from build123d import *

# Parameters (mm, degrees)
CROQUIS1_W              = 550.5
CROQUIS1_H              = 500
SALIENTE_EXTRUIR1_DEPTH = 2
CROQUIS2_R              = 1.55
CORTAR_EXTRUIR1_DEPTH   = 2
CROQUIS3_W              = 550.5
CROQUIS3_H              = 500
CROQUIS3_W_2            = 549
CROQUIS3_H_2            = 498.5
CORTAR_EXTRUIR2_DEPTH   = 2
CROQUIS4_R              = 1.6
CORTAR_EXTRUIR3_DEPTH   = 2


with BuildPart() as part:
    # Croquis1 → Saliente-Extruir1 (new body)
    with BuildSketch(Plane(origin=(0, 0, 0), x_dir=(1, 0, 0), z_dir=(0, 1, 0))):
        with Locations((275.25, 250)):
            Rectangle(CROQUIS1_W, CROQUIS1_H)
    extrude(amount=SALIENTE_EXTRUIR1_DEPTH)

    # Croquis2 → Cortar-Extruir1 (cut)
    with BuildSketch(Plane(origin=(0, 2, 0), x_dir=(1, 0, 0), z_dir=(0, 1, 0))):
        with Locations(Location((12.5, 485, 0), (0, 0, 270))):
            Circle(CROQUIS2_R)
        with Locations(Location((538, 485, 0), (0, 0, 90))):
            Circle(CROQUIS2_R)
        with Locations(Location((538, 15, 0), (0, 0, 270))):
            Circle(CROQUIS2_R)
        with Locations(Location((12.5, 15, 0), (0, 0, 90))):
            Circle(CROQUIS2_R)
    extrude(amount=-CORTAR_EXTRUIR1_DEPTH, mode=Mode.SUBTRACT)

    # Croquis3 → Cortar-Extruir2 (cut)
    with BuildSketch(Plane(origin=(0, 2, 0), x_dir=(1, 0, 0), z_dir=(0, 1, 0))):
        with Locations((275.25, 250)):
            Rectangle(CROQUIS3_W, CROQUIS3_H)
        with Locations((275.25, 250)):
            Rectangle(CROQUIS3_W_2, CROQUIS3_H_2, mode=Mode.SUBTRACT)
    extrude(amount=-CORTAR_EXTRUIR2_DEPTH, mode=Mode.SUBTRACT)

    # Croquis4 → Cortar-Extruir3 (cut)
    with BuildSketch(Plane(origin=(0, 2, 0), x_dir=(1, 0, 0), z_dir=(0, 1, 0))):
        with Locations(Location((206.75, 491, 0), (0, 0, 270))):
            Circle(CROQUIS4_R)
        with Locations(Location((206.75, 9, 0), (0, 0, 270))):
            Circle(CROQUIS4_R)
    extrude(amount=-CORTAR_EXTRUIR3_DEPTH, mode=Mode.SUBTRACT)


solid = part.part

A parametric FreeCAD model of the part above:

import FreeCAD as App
import Part
import Sketcher
from FreeCAD import Vector

doc = App.newDocument("Part")
body = doc.addObject("PartDesign::Body", "Body")

sketch1 = body.newObject("Sketcher::SketchObject", "Sketch")
sketch1.AttachmentSupport = (doc.getObject("XZ_Plane"), [""])
sketch1.MapMode = "FlatFace"
sketch1.addGeometry([
    Part.LineSegment(Vector(0, -500, 0), Vector(0, 0, 0)),
    Part.LineSegment(Vector(0, 0, 0), Vector(550, 0, 0)),
    Part.LineSegment(Vector(550, 0, 0), Vector(550, -500, 0)),
    Part.LineSegment(Vector(550, -500, 0), Vector(0, -500, 0)),
], False)
sketch1.addConstraint([
    Sketcher.Constraint("Coincident", 0, 2, 1, 1),
    Sketcher.Constraint("Coincident", 1, 2, 2, 1),
    Sketcher.Constraint("Coincident", 2, 2, 3, 1),
    Sketcher.Constraint("Coincident", 3, 2, 0, 1),
    Sketcher.Constraint("Vertical", 0),
    Sketcher.Constraint("Horizontal", 1),
    Sketcher.Constraint("Vertical", 2),
    Sketcher.Constraint("Horizontal", 3),
    Sketcher.Constraint("Coincident", 0, 2, -1, 1),
    Sketcher.Constraint("DistanceY", 0, 1, 0, 2, 500.0),
    Sketcher.Constraint("DistanceX", 1, 1, 1, 2, 550.5),
])
pad1 = body.newObject("PartDesign::Pad", "Pad")
pad1.Profile = sketch1
pad1.Length = 2
pad1.Reversed = True

sketch2 = body.newObject("Sketcher::SketchObject", "Sketch001")
sketch2.AttachmentSupport = (doc.getObject("XZ_Plane"), [""])
sketch2.MapMode = "FlatFace"
sketch2.AttachmentOffset = App.Placement(Vector(0, 0, -2), App.Rotation())
sketch2.addGeometry([
    Part.Circle(Vector(12.5, -485, 0), Vector(0, 0, 1), 1.6),
    Part.Circle(Vector(538, -485, 0), Vector(0, 0, 1), 1.6),
    Part.Circle(Vector(538, -15, 0), Vector(0, 0, 1), 1.6),
    Part.Circle(Vector(12.5, -15, 0), Vector(0, 0, 1), 1.6),
], False)
sketch2.addConstraint([
    Sketcher.Constraint("Equal", 0, 1),
    Sketcher.Constraint("Equal", 1, 2),
    Sketcher.Constraint("Equal", 2, 3),
    Sketcher.Constraint("Horizontal", 0, 3, 1, 3),
    Sketcher.Constraint("Horizontal", 2, 3, 3, 3),
    Sketcher.Constraint("Vertical", 1, 3, 2, 3),
    Sketcher.Constraint("Vertical", 0, 3, 3, 3),
    Sketcher.Constraint("Diameter", 0, 3.1),
    Sketcher.Constraint("DistanceY", 0, 3, -1, 1, 485.0),
    Sketcher.Constraint("DistanceX", -1, 1, 1, 3, 538.0),
    Sketcher.Constraint("DistanceY", 2, 3, -1, 1, 15.0),
    Sketcher.Constraint("DistanceX", -1, 1, 0, 3, 12.5),
])
pocket1 = body.newObject("PartDesign::Pocket", "Pocket")
pocket1.Profile = sketch2
pocket1.Length = 2
pocket1.Reversed = True

sketch3 = body.newObject("Sketcher::SketchObject", "Sketch002")
sketch3.AttachmentSupport = (doc.getObject("XZ_Plane"), [""])
sketch3.MapMode = "FlatFace"
sketch3.AttachmentOffset = App.Placement(Vector(0, 0, -2), App.Rotation())
sketch3.addGeometry([
    Part.LineSegment(Vector(0, -500, 0), Vector(0, 0, 0)),
    Part.LineSegment(Vector(0, 0, 0), Vector(550, 0, 0)),
    Part.LineSegment(Vector(550, 0, 0), Vector(550, -500, 0)),
    Part.LineSegment(Vector(550, -500, 0), Vector(0, -500, 0)),
    Part.LineSegment(Vector(550, -1, 0), Vector(1, -1, 0)),
    Part.LineSegment(Vector(1, -1, 0), Vector(1, -499, 0)),
    Part.LineSegment(Vector(1, -499, 0), Vector(550, -499, 0)),
    Part.LineSegment(Vector(550, -499, 0), Vector(550, -1, 0)),
], False)
sketch3.addConstraint([
    Sketcher.Constraint("Coincident", 0, 2, 1, 1),
    Sketcher.Constraint("Coincident", 1, 2, 2, 1),
    Sketcher.Constraint("Coincident", 2, 2, 3, 1),
    Sketcher.Constraint("Coincident", 3, 2, 0, 1),
    Sketcher.Constraint("Coincident", 4, 2, 5, 1),
    Sketcher.Constraint("Coincident", 5, 2, 6, 1),
    Sketcher.Constraint("Coincident", 6, 2, 7, 1),
    Sketcher.Constraint("Coincident", 7, 2, 4, 1),
    Sketcher.Constraint("Vertical", 0),
    Sketcher.Constraint("Horizontal", 1),
    Sketcher.Constraint("Vertical", 2),
    Sketcher.Constraint("Horizontal", 3),
    Sketcher.Constraint("Horizontal", 4),
    Sketcher.Constraint("Vertical", 5),
    Sketcher.Constraint("Horizontal", 6),
    Sketcher.Constraint("Vertical", 7),
    Sketcher.Constraint("Coincident", 0, 2, -1, 1),
    Sketcher.Constraint("DistanceX", 4, 2, 4, 1, 549.0),
    Sketcher.Constraint("DistanceY", 0, 1, 0, 2, 500.0),
    Sketcher.Constraint("DistanceX", 1, 1, 1, 2, 550.5),
    Sketcher.Constraint("DistanceY", 5, 2, 5, 1, 498.5),
    Sketcher.Constraint("DistanceX", -1, 1, 4, 2, 0.75),
    Sketcher.Constraint("DistanceY", 4, 2, -1, 1, 0.75),
])
pocket2 = body.newObject("PartDesign::Pocket", "Pocket001")
pocket2.Profile = sketch3
pocket2.Length = 2
pocket2.Reversed = True

sketch4 = body.newObject("Sketcher::SketchObject", "Sketch003")
sketch4.AttachmentSupport = (doc.getObject("XZ_Plane"), [""])
sketch4.MapMode = "FlatFace"
sketch4.AttachmentOffset = App.Placement(Vector(0, 0, -2), App.Rotation())
sketch4.addGeometry([
    Part.Circle(Vector(206.8, -491, 0), Vector(0, 0, 1), 1.6),
    Part.Circle(Vector(206.8, -9, 0), Vector(0, 0, 1), 1.6),
], False)
sketch4.addConstraint([
    Sketcher.Constraint("Equal", 0, 1),
    Sketcher.Constraint("Vertical", 0, 3, 1, 3),
    Sketcher.Constraint("Diameter", 0, 3.2),
    Sketcher.Constraint("DistanceY", 0, 3, -1, 1, 491.0),
    Sketcher.Constraint("DistanceY", 1, 3, -1, 1, 9.0),
    Sketcher.Constraint("DistanceX", -1, 1, 0, 3, 206.75),
])
pocket3 = body.newObject("PartDesign::Pocket", "Pocket002")
pocket3.Profile = sketch4
pocket3.Length = 2
pocket3.Reversed = True

doc.recompute()
